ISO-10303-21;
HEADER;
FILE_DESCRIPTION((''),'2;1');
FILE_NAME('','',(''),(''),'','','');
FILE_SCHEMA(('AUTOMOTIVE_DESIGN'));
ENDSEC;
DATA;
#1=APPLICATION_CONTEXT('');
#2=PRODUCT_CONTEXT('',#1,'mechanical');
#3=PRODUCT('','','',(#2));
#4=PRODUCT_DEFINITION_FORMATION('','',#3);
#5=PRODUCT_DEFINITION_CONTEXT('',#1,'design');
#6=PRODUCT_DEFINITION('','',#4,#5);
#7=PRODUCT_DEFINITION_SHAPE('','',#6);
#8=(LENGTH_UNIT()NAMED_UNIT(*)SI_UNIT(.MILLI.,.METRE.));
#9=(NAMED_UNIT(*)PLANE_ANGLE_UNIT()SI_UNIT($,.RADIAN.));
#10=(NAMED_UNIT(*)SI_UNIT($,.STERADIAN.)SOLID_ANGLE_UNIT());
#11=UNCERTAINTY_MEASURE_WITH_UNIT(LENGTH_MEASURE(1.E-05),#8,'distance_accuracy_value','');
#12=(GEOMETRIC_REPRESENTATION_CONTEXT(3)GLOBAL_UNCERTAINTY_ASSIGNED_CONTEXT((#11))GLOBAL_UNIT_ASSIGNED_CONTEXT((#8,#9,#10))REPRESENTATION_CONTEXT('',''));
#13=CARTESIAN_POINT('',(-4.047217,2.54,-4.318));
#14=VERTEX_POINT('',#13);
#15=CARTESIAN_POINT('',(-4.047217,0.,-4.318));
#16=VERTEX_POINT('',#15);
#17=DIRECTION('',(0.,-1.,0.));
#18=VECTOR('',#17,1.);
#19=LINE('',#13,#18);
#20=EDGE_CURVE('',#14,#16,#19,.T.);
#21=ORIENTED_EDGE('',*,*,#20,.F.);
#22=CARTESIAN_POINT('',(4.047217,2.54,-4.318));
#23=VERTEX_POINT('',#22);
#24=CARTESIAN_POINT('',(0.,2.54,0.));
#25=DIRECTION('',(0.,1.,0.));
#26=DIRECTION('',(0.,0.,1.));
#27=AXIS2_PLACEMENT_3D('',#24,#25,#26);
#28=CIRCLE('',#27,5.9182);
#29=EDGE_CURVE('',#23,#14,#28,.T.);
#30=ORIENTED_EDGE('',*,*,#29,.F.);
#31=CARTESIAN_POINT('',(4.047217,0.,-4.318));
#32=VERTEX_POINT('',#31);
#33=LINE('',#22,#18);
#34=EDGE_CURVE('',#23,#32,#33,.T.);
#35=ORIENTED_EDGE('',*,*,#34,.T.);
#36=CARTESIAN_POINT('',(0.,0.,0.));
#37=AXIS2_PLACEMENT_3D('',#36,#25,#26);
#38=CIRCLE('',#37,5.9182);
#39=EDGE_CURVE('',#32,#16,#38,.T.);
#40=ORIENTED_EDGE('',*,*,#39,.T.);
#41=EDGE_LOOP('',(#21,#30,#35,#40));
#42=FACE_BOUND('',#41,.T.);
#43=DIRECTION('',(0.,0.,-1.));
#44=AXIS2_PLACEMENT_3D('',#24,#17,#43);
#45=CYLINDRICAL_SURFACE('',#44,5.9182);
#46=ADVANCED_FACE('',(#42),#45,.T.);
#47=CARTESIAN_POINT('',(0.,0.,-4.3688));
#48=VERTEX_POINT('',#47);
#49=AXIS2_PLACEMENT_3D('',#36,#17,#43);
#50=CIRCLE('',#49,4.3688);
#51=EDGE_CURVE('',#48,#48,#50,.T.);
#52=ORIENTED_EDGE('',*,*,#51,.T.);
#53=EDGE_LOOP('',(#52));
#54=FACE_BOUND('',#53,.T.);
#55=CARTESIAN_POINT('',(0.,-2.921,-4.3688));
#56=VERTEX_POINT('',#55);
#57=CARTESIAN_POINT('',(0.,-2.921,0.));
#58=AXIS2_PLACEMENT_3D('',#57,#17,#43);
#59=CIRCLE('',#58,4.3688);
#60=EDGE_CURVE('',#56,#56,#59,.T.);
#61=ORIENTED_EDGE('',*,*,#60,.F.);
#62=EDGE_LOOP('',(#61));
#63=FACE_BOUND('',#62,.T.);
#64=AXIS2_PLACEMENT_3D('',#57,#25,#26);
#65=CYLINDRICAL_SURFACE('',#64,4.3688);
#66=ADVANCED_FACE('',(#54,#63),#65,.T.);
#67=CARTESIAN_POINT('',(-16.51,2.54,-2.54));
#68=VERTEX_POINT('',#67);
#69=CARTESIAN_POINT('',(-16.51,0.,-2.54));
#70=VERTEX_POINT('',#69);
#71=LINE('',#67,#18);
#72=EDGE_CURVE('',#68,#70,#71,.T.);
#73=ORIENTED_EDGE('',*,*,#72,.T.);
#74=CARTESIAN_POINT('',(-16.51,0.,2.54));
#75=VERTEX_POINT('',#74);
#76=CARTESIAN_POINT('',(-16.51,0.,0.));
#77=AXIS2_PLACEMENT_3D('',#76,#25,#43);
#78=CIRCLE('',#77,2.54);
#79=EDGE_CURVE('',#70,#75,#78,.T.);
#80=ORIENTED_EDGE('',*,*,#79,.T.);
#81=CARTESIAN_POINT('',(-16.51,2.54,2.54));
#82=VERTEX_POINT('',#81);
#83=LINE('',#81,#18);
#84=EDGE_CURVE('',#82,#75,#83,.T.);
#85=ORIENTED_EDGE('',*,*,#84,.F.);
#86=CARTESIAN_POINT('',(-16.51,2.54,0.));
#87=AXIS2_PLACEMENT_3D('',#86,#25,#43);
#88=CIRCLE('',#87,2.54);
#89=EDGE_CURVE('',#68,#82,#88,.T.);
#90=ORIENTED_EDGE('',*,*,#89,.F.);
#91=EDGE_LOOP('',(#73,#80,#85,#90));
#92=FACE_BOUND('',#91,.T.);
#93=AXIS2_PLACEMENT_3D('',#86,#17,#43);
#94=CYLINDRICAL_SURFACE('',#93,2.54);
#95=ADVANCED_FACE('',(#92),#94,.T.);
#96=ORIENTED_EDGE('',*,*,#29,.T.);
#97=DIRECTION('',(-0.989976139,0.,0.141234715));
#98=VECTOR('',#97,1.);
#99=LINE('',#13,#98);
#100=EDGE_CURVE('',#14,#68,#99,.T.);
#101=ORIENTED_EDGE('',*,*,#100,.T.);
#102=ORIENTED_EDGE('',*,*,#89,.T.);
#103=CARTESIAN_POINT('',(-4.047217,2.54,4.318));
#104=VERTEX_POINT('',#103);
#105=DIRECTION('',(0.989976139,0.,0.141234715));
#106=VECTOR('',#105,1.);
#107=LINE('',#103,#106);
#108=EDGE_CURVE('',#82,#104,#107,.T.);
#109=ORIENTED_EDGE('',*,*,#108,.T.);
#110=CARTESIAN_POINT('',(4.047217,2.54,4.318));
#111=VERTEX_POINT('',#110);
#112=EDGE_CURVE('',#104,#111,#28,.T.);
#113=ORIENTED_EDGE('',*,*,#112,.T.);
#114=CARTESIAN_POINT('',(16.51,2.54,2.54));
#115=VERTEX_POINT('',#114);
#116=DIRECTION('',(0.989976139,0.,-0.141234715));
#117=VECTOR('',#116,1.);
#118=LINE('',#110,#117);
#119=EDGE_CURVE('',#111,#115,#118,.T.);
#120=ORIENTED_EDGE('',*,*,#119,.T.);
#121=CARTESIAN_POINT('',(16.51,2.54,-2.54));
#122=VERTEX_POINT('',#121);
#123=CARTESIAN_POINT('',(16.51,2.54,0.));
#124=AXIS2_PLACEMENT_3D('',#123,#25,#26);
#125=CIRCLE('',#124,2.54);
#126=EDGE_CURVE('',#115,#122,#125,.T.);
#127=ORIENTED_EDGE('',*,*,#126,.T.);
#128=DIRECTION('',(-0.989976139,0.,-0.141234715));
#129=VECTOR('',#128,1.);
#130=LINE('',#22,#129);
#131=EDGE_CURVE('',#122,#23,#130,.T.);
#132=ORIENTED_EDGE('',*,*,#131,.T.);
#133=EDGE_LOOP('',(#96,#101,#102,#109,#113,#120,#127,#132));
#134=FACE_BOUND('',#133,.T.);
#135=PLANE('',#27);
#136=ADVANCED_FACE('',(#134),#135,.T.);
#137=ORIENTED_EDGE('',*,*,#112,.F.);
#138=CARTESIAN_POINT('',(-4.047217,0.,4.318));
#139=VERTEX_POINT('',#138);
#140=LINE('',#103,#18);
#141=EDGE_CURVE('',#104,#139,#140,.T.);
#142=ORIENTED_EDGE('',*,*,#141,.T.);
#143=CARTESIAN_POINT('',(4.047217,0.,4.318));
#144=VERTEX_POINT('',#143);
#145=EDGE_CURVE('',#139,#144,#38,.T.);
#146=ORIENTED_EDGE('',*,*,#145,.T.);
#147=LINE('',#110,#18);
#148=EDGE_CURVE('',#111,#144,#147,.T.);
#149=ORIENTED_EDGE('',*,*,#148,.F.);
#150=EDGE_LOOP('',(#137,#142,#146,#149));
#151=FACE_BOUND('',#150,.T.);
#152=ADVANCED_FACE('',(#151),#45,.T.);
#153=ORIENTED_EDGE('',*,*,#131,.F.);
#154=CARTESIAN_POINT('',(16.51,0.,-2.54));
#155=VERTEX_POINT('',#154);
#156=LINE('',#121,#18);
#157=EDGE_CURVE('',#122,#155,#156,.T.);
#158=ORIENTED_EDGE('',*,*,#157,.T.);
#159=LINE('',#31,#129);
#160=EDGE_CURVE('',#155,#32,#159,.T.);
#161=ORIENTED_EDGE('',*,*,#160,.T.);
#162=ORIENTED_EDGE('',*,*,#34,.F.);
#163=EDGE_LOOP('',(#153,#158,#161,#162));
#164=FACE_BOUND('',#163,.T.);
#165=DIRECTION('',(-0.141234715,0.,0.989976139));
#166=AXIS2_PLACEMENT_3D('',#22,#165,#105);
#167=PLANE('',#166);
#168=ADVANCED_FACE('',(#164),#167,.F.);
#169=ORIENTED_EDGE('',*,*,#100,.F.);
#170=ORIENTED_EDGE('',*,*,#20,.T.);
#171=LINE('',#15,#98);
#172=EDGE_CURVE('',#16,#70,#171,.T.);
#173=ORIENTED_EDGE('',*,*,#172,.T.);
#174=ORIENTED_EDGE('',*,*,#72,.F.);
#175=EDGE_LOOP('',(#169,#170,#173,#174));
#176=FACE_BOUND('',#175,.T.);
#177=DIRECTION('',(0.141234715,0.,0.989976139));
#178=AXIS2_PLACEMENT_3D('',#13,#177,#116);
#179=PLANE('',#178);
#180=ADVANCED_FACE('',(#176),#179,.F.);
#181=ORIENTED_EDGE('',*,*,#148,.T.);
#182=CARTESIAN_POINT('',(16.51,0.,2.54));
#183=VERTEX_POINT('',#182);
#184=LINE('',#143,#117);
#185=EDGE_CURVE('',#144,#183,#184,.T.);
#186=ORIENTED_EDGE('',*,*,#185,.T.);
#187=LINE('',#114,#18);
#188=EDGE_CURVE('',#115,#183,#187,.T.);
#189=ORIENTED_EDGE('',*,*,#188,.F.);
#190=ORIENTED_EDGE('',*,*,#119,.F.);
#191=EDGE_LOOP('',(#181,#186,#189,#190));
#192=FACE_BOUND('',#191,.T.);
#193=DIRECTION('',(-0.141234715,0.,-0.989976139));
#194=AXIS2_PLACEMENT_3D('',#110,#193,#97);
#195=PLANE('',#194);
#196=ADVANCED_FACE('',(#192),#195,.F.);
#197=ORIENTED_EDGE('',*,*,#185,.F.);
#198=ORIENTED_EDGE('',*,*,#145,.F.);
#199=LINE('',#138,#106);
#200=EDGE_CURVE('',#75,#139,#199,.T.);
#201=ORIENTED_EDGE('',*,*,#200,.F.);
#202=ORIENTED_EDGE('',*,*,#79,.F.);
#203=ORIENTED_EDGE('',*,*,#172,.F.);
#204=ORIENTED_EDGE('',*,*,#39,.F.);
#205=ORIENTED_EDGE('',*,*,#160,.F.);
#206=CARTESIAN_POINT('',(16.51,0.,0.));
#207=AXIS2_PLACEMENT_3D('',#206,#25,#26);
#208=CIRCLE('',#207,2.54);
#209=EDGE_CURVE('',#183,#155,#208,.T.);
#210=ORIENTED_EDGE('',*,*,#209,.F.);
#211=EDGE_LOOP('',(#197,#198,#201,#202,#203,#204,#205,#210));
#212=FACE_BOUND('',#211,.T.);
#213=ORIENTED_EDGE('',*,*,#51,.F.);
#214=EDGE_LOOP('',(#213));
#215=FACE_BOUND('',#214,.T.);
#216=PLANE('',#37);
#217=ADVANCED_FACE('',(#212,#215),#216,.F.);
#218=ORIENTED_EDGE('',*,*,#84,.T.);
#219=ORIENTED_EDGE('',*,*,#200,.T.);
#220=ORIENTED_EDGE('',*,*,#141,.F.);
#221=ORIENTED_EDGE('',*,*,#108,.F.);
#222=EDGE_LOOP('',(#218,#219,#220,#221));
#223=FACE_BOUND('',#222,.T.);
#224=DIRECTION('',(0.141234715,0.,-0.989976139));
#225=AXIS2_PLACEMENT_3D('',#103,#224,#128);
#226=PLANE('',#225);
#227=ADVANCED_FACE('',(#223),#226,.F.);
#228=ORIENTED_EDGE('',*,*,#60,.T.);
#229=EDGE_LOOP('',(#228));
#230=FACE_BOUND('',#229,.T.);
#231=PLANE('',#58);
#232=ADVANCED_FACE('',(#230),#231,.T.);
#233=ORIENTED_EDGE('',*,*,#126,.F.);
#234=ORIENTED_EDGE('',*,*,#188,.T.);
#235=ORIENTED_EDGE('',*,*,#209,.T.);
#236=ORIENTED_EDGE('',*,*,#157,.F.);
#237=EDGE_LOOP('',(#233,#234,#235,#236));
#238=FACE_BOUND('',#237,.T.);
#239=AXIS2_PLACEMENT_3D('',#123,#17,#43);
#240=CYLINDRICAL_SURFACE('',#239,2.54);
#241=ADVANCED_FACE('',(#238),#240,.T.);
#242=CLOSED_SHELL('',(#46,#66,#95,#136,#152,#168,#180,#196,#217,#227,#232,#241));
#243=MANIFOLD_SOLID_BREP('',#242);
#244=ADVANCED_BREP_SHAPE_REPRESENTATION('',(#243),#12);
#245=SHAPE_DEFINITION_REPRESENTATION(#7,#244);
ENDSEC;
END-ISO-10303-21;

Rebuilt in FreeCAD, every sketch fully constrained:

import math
import FreeCAD as App
import Part
import Sketcher
from FreeCAD import Vector
Q = App.Units.Quantity

doc = App.newDocument("Part")
body = doc.addObject("PartDesign::Body", "Body")

sketch1 = body.newObject("Sketcher::SketchObject", "Sketch")
sketch1.AttachmentSupport = (doc.getObject("XZ_Plane"), [""])
sketch1.MapMode = "FlatFace"
sketch1.addGeometry([
    Part.LineSegment(Vector(16.5, -2.5, 0), Vector(4, -4.3, 0)),
    Part.ArcOfCircle(Part.Circle(Vector(0, 0, 0), Vector(0, 0, 1), 5.9), math.radians(-133), math.radians(-47)),
    Part.LineSegment(Vector(-4, -4.3, 0), Vector(-16.5, -2.5, 0)),
    Part.ArcOfCircle(Part.Circle(Vector(-16.5, 0, 0), Vector(0, 0, 1), 2.5), math.radians(90), math.radians(270)),
    Part.LineSegment(Vector(-16.5, 2.5, 0), Vector(-4, 4.3, 0)),
    Part.ArcOfCircle(Part.Circle(Vector(0, 0, 0), Vector(0, 0, 1), 5.9), math.radians(47), math.radians(133)),
    Part.LineSegment(Vector(4, 4.3, 0), Vector(16.5, 2.5, 0)),
    Part.ArcOfCircle(Part.Circle(Vector(16.5, 0, 0), Vector(0, 0, 1), 2.5), math.radians(-90), math.radians(90)),
], False)
sketch1.addConstraint([
    Sketcher.Constraint("Coincident", 0, 2, 1, 2),
    Sketcher.Constraint("Coincident", 1, 1, 2, 1),
    Sketcher.Constraint("Coincident", 2, 2, 3, 2),
    Sketcher.Constraint("Coincident", 3, 1, 4, 1),
    Sketcher.Constraint("Coincident", 4, 2, 5, 2),
    Sketcher.Constraint("Coincident", 5, 1, 6, 1),
    Sketcher.Constraint("Coincident", 6, 2, 7, 2),
    Sketcher.Constraint("Coincident", 7, 1, 0, 1),
    Sketcher.Constraint("Coincident", 1, 3, -1, 1),
    Sketcher.Constraint("Coincident", 5, 3, -1, 1),
    Sketcher.Constraint("Equal", 1, 5),
    Sketcher.Constraint("Equal", 3, 7),
    Sketcher.Constraint("Symmetric", 3, 3, 7, 3, -1, 1),
    Sketcher.Constraint("Symmetric", 3, 1, 6, 2, -2),
    Sketcher.Constraint("Parallel", 0, 4),
    Sketcher.Constraint("Parallel", 2, 6),
    Sketcher.Constraint("Horizontal", 0, 2, 1, 1),
    Sketcher.Constraint("Horizontal", 4, 2, 5, 1),
    Sketcher.Constraint("Vertical", 3, 3, 2, 2),
    Sketcher.Constraint("Vertical", 2, 2, 3, 1),
    Sketcher.Constraint("Radius", 3, Q("0.1 in")),
    Sketcher.Constraint("Radius", 1, Q("0.233 in")),
    Sketcher.Constraint("DistanceX", 3, 3, 7, 3, Q("1.3 in")),
    Sketcher.Constraint("DistanceY", 0, 2, -1, 1, Q("0.17 in")),
])
pad1 = body.newObject("PartDesign::Pad", "Pad")
pad1.Profile = sketch1
pad1.Length = Q("0.1 in")
pad1.Reversed = True

sketch2 = body.newObject("Sketcher::SketchObject", "Sketch001")
sketch2.AttachmentSupport = (doc.getObject("XZ_Plane"), [""])
sketch2.MapMode = "FlatFace"
sketch2.addGeometry(Part.Circle(Vector(0, 0, 0), Vector(0, 0, 1), 4.4), False)
sketch2.addConstraint([
    Sketcher.Constraint("Coincident", 0, 3, -1, 1),
    Sketcher.Constraint("Diameter", 0, Q("0.344 in")),
])
pad2 = body.newObject("PartDesign::Pad", "Pad001")
pad2.Profile = sketch2
pad2.Length = Q("0.115 in")

doc.recompute()
